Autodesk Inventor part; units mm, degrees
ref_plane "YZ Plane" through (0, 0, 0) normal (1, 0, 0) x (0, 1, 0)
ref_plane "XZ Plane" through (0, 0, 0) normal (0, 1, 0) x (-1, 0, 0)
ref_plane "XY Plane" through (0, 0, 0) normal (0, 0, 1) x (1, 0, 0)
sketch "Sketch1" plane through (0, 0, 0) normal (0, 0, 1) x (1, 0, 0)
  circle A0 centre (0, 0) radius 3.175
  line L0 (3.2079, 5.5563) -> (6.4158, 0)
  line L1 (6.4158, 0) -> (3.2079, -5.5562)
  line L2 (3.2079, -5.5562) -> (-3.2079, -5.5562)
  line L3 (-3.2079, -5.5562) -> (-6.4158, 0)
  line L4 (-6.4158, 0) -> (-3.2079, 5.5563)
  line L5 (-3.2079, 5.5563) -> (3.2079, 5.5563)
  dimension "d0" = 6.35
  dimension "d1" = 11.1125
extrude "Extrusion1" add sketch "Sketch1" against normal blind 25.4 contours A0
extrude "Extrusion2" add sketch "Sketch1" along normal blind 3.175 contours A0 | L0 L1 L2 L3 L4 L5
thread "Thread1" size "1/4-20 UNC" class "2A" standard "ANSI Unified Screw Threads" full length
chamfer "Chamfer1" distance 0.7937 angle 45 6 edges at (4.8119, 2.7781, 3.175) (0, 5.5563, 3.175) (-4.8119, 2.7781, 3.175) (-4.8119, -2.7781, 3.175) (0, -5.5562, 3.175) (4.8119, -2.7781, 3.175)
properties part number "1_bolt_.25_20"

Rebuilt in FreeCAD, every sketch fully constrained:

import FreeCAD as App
import Part
import Sketcher
Q = App.Units.Quantity


def edges_at(feature, points):
    """Names of the edges that pass closest to the given points."""
    edges = feature.Shape.Edges
    near = lambda p: min(range(len(edges)), key=lambda i: edges[i].distToShape(Part.Vertex(*p))[0])
    return sorted({f"Edge{near(p) + 1}" for p in points})

doc = App.newDocument("Part")
body = doc.addObject("PartDesign::Body", "Body")

sketch1 = doc.addObject("Sketcher::SketchObject", "Sketch")
body.addObject(sketch1)
sketch1.AttachmentSupport = (doc.XY_Plane, [""])
sketch1.MapMode = "FlatFace"
sketch1.addGeometry(Part.Circle(App.Vector(0, 0, 0), App.Vector(0, 0, 1), 3.2), False)
sketch1.addConstraint(Sketcher.Constraint("Coincident", 0, 3, -1, 1))
sketch1.addConstraint(Sketcher.Constraint("Diameter", 0, Q("0.25 in")))
pad1 = doc.addObject("PartDesign::Pad", "Pad")
body.addObject(pad1)
pad1.Profile = sketch1
pad1.Length = Q("1 in")
pad1.Reversed = True

sketch2 = doc.addObject("Sketcher::SketchObject", "Sketch001")
body.addObject(sketch2)
sketch2.AttachmentSupport = (doc.XY_Plane, [""])
sketch2.MapMode = "FlatFace"
sketch2.addGeometry(Part.LineSegment(App.Vector(6, 0, 0), App.Vector(3, 6, 0)), False)
sketch2.addGeometry(Part.LineSegment(App.Vector(3, 6, 0), App.Vector(-3, 6, 0)), False)
sketch2.addGeometry(Part.LineSegment(App.Vector(-3, 6, 0), App.Vector(-6, 0, 0)), False)
sketch2.addGeometry(Part.LineSegment(App.Vector(-6, 0, 0), App.Vector(-3, -6, 0)), False)
sketch2.addGeometry(Part.LineSegment(App.Vector(-3, -6, 0), App.Vector(3, -6, 0)), False)
sketch2.addGeometry(Part.LineSegment(App.Vector(3, -6, 0), App.Vector(6, 0, 0)), False)
sketch2.addConstraint(Sketcher.Constraint("Coincident", 0, 2, 1, 1))
sketch2.addConstraint(Sketcher.Constraint("Coincident", 1, 2, 2, 1))
sketch2.addConstraint(Sketcher.Constraint("Coincident", 2, 2, 3, 1))
sketch2.addConstraint(Sketcher.Constraint("Coincident", 3, 2, 4, 1))
sketch2.addConstraint(Sketcher.Constraint("Coincident", 4, 2, 5, 1))
sketch2.addConstraint(Sketcher.Constraint("Coincident", 5, 2, 0, 1))
sketch2.addConstraint(Sketcher.Constraint("Horizontal", 1))
sketch2.addConstraint(Sketcher.Constraint("Horizontal", 4))
sketch2.addConstraint(Sketcher.Constraint("Symmetric", 0, 2, 3, 2, -1, 1))
sketch2.addConstraint(Sketcher.Constraint("Symmetric", 2, 2, 5, 2, -1, 1))
sketch2.addConstraint(Sketcher.Constraint("PointOnObject", 2, 2, -1))
sketch2.addConstraint(Sketcher.Constraint("Parallel", 2, 5))
sketch2.addConstraint(Sketcher.Constraint("Vertical", 1, 2, 3, 2))
sketch2.addConstraint(Sketcher.Constraint("Angle", 0, Q("119.9998 deg")))
sketch2.addConstraint(Sketcher.Constraint("DistanceY", 3, 2, 1, 2, Q("0.4375 in")))
sketch2.addConstraint(Sketcher.Constraint("DistanceX", 1, 2, 1, 1, Q("0.2526 in")))
pad2 = doc.addObject("PartDesign::Pad", "Pad001")
body.addObject(pad2)
pad2.Profile = sketch2
pad2.Length = Q("0.125 in")
doc.recompute()

chamfer = doc.addObject("PartDesign::Chamfer", "Chamfer")
body.addObject(chamfer)
chamfer.Base = (pad2, edges_at(pad2, [
    (4.812, 2.778, 3.175),
    (0, 5.556, 3.175),
    (-4.812, 2.778, 3.175),
    (-4.812, -2.778, 3.175),
    (0, -5.556, 3.175),
    (4.812, -2.778, 3.175),
]))
chamfer.Size = Q("0.031248 in")

doc.recompute()
